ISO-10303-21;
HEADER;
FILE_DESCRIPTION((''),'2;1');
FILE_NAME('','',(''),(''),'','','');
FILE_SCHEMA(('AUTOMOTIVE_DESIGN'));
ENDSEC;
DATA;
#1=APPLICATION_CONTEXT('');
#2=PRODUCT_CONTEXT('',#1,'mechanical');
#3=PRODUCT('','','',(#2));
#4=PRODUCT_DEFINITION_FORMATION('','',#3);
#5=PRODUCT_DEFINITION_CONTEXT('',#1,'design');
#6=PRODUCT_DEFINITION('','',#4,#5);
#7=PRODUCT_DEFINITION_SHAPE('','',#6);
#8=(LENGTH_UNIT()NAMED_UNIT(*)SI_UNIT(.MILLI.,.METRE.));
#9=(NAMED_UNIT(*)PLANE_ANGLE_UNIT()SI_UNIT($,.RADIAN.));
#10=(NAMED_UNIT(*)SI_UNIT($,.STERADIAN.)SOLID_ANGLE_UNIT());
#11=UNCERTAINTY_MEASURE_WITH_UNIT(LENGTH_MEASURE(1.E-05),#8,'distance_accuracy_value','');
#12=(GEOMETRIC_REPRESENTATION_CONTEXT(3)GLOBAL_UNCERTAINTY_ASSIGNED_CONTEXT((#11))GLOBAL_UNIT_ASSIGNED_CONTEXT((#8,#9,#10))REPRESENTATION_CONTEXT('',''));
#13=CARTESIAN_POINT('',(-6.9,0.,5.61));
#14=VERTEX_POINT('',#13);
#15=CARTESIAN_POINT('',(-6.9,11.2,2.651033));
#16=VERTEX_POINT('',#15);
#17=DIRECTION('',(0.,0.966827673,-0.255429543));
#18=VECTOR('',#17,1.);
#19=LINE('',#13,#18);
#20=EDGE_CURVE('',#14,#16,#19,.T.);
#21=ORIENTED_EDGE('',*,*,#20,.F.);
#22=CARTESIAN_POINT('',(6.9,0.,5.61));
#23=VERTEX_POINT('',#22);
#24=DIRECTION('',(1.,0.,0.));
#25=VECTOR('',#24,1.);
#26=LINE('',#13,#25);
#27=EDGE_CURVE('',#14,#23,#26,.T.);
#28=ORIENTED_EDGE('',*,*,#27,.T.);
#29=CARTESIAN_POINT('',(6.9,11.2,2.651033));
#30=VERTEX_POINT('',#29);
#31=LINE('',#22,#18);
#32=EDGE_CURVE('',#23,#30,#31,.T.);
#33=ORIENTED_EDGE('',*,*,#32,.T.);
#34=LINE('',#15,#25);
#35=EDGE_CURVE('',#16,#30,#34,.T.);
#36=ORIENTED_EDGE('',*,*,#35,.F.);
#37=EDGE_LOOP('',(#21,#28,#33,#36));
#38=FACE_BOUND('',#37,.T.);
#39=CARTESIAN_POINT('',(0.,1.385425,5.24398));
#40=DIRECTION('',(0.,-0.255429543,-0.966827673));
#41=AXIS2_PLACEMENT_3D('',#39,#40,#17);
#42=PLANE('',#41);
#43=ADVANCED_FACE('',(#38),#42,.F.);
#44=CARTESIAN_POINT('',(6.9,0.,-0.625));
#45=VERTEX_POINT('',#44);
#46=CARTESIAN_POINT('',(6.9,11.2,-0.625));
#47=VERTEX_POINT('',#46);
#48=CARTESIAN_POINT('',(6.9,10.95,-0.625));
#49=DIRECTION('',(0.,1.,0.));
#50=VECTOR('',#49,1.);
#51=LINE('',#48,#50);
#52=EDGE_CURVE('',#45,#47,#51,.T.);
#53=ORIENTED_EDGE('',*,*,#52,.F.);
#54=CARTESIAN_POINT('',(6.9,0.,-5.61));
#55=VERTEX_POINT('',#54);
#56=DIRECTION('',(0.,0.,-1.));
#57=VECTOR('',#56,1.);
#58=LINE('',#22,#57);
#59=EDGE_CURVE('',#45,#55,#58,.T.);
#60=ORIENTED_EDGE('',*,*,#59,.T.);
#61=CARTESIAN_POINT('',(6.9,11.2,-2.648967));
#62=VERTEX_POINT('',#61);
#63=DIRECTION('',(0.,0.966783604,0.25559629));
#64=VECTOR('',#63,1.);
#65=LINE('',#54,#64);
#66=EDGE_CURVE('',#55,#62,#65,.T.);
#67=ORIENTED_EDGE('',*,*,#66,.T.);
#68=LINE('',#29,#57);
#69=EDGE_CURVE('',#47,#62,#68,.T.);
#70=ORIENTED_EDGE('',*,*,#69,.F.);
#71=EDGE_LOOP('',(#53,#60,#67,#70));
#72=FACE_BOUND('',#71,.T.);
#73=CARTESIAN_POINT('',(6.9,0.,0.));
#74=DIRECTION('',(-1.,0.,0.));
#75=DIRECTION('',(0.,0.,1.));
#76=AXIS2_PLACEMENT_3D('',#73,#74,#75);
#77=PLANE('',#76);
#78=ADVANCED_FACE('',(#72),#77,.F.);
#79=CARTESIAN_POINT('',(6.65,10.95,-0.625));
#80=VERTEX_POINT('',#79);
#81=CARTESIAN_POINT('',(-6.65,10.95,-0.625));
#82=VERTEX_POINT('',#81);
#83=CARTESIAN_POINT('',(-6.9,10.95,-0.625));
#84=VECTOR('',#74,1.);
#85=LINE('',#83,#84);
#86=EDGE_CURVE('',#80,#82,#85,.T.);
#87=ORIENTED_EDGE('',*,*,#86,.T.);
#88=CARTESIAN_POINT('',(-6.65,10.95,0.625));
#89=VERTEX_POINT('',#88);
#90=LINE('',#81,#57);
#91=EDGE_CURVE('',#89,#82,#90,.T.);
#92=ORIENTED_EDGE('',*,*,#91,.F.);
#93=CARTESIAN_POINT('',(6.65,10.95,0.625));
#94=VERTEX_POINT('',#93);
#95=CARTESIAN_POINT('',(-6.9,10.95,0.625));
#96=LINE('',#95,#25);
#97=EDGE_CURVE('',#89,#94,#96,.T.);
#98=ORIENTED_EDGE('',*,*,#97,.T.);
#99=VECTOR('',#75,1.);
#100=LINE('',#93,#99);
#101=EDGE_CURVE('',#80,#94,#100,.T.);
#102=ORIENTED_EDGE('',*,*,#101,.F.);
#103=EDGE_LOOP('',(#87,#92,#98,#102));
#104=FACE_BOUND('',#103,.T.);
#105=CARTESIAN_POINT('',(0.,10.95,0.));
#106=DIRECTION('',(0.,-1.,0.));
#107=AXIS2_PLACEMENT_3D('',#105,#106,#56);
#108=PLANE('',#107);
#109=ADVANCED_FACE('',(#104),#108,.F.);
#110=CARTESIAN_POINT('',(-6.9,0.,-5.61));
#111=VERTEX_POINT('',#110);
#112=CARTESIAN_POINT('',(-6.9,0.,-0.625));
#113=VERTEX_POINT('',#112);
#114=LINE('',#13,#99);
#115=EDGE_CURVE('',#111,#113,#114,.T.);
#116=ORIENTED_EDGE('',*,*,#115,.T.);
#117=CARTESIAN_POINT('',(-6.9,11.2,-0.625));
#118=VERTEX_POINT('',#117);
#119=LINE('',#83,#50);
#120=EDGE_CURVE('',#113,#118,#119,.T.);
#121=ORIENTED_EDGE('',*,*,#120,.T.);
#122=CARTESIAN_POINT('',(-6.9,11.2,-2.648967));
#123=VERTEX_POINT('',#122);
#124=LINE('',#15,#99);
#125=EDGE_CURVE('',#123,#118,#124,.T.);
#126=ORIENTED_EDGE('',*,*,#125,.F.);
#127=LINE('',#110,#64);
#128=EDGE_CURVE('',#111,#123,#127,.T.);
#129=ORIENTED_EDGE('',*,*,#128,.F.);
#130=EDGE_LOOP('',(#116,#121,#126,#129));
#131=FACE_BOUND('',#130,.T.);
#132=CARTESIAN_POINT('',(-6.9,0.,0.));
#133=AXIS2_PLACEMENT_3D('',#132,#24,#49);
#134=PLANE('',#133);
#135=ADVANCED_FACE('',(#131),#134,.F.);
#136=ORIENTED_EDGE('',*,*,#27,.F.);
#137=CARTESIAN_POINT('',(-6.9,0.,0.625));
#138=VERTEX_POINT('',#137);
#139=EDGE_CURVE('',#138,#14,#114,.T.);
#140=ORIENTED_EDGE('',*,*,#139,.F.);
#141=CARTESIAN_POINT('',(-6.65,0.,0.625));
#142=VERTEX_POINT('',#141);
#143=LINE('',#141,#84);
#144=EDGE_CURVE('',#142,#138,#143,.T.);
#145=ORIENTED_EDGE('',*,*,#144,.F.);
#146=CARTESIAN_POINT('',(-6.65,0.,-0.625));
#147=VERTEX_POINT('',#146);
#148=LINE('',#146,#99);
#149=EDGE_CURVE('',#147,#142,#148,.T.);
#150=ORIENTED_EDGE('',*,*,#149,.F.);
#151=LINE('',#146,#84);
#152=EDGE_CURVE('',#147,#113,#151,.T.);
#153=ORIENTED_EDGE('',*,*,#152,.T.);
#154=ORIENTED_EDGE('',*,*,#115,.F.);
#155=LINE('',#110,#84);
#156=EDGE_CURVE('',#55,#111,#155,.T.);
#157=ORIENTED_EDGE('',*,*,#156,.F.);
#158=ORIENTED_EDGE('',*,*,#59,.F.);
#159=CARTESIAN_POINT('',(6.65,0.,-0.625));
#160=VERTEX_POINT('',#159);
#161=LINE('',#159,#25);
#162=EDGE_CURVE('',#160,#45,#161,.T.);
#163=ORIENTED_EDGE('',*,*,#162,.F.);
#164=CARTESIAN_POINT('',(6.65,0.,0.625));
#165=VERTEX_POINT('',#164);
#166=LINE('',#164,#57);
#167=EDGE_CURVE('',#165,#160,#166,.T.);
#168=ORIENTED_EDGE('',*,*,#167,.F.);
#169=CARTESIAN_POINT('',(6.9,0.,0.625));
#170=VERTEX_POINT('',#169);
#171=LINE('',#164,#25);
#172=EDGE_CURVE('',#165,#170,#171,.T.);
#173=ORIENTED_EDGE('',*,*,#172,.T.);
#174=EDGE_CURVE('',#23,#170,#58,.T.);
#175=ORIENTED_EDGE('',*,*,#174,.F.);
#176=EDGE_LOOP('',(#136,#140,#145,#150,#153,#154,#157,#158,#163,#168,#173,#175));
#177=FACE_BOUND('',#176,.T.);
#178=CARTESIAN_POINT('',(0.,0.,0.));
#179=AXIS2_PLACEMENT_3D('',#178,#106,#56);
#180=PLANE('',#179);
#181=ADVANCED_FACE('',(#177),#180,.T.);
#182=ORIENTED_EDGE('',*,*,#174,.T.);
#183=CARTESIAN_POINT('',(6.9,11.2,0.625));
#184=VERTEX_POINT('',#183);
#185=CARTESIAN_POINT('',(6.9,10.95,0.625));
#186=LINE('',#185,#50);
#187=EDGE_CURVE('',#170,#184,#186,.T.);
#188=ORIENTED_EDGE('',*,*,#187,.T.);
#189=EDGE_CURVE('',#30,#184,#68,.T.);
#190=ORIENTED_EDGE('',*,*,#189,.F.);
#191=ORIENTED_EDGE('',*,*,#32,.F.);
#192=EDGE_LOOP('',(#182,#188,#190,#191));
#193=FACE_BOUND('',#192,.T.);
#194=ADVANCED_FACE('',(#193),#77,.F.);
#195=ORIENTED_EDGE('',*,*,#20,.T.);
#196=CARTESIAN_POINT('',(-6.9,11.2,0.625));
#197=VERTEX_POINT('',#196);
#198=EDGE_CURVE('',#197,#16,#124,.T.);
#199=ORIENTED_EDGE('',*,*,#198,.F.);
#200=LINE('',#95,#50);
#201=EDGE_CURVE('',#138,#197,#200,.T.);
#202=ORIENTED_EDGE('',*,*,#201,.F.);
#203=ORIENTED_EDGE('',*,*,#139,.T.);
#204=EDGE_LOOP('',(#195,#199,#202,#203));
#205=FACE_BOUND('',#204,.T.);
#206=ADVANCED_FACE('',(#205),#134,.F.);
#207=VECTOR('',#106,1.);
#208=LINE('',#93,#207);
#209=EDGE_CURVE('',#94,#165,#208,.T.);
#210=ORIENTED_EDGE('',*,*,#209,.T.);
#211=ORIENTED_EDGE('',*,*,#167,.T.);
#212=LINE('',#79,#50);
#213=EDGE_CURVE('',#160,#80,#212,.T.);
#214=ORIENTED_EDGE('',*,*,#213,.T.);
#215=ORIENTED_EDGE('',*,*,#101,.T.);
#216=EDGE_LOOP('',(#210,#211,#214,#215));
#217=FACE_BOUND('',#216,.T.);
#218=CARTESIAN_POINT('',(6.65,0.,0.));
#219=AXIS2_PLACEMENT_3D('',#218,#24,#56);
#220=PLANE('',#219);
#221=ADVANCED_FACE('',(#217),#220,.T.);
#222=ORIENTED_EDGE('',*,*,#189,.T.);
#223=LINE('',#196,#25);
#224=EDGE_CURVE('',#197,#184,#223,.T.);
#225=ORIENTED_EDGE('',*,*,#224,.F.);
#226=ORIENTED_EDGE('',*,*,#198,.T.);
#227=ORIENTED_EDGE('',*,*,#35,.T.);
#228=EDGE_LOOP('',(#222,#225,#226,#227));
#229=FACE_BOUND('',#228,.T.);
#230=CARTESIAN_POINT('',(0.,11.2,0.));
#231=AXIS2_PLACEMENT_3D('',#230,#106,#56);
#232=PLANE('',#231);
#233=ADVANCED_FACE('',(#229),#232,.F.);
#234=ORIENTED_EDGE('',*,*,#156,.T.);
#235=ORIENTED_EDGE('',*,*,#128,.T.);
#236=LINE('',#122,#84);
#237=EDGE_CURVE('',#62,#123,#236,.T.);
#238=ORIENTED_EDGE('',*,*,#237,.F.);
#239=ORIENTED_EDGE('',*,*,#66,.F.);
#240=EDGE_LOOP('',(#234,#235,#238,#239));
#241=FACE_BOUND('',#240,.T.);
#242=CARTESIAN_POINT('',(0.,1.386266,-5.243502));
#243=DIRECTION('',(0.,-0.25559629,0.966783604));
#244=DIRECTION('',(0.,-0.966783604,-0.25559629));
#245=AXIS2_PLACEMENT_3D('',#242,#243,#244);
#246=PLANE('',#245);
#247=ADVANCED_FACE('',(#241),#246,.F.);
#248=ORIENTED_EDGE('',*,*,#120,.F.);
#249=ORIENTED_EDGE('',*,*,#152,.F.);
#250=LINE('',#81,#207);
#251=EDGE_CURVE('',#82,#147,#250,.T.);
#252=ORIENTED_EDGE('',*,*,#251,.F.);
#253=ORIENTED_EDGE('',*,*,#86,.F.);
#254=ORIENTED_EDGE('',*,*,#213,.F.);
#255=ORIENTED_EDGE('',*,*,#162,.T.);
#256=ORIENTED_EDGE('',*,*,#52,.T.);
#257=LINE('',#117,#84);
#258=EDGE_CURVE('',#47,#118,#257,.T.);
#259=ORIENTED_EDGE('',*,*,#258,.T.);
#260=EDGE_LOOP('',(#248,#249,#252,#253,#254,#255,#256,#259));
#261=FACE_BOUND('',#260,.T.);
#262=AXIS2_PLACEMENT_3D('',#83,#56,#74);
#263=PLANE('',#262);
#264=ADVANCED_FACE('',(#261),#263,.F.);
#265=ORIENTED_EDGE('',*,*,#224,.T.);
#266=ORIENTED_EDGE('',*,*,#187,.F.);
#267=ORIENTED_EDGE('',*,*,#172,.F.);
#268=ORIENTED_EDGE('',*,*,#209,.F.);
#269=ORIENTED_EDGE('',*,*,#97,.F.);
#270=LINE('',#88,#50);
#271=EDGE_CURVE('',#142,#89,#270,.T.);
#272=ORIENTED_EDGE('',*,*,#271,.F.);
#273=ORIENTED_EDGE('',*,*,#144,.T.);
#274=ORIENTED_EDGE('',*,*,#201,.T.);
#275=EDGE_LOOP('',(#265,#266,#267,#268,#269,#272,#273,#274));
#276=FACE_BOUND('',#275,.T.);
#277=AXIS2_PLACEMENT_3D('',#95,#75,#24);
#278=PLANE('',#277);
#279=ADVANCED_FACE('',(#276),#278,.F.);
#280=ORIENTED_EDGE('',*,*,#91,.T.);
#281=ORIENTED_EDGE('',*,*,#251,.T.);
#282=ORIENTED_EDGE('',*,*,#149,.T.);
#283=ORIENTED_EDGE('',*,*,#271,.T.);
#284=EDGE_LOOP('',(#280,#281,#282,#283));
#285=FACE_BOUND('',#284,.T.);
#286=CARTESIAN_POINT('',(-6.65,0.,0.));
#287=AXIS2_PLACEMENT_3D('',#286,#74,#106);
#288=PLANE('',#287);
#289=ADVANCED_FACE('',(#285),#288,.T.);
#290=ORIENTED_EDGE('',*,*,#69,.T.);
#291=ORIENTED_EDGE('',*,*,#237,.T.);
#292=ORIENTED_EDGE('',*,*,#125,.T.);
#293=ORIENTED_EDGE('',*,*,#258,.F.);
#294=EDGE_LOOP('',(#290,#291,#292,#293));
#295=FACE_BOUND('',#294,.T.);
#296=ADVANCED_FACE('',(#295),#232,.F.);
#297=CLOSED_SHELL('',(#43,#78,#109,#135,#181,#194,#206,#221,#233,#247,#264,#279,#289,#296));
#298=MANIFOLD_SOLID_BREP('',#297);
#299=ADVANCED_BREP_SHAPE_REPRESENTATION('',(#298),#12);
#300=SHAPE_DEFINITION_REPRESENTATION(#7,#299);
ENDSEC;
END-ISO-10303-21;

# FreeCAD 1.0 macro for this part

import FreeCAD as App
import Part
import Sketcher
Q = App.Units.Quantity


def add_polygon(sketch, points):
    """Adds a closed chain of lines whose ends are joined by coincident constraints."""
    first, n = sketch.GeometryCount, len(points)
    for a, b in zip(points, points[1:] + points[:1]):
        sketch.addGeometry(Part.LineSegment(App.Vector(*a, 0), App.Vector(*b, 0)), False)
    for i in range(n):
        sketch.addConstraint(Sketcher.Constraint("Coincident", first + i, 2, first + (i + 1) % n, 1))

doc = App.newDocument("Part")
body = doc.addObject("PartDesign::Body", "Body")

sketch1 = doc.addObject("Sketcher::SketchObject", "Sketch")
body.addObject(sketch1)
sketch1.AttachmentSupport = (doc.XZ_Plane, [""])
sketch1.MapMode = "FlatFace"
add_polygon(sketch1, [(-7, 6), (7, 6), (7, -6), (-7, -6)])
sketch1.addConstraint([
    Sketcher.Constraint("Horizontal", 0),
    Sketcher.Constraint("Vertical", 1),
    Sketcher.Constraint("Horizontal", 2),
    Sketcher.Constraint("Vertical", 3),
    Sketcher.Constraint("Symmetric", 0, 2, 2, 2, -1, 1),
    Sketcher.Constraint("DistanceX", 0, 1, 0, 2, Q("13.8 mm")),
    Sketcher.Constraint("DistanceY", 1, 2, 1, 1, Q("11.22 mm")),
])

sketch2 = doc.addObject("Sketcher::SketchObject", "Sketch001")
body.addObject(sketch2)
sketch2.AttachmentSupport = (doc.XZ_Plane, [""])
sketch2.MapMode = "FlatFace"
sketch2.AttachmentOffset = App.Placement(App.Vector(0, 0, -11.2), App.Rotation())
add_polygon(sketch2, [(-7, 3), (7, 3), (7, -3), (-7, -3)])
sketch2.addConstraint([
    Sketcher.Constraint("Horizontal", 0),
    Sketcher.Constraint("Vertical", 1),
    Sketcher.Constraint("Horizontal", 2),
    Sketcher.Constraint("Vertical", 3),
    Sketcher.Constraint("DistanceX", 0, 1, 0, 2, Q("13.8 mm")),
    Sketcher.Constraint("DistanceY", 1, 2, 1, 1, Q("5.3 mm")),
    Sketcher.Constraint("DistanceX", -1, 1, 0, 2, Q("6.9 mm")),
    Sketcher.Constraint("DistanceY", -1, 1, 0, 2, Q("2.651033 mm")),
])

additiveloft = doc.addObject("PartDesign::AdditiveLoft", "AdditiveLoft")
body.addObject(additiveloft)
additiveloft.Profile = sketch1
additiveloft.Sections = [sketch2]

sketch3 = doc.addObject("Sketcher::SketchObject", "Sketch002")
body.addObject(sketch3)
sketch3.AttachmentSupport = (doc.XZ_Plane, [""])
sketch3.MapMode = "FlatFace"
sketch3.AttachmentOffset = App.Placement(App.Vector(0, 0, -11.2), App.Rotation())
add_polygon(sketch3, [(-6.9, -0.6), (-6.9, 0.6), (6.9, 0.6), (6.9, -0.6)])
sketch3.addConstraint([
    Sketcher.Constraint("Vertical", 0),
    Sketcher.Constraint("Horizontal", 1),
    Sketcher.Constraint("Vertical", 2),
    Sketcher.Constraint("Horizontal", 3),
    Sketcher.Constraint("Symmetric", 0, 2, 2, 2, -1, 1),
    Sketcher.Constraint("DistanceX", 1, 1, 1, 2, Q("13.8 mm")),
    Sketcher.Constraint("DistanceY", 0, 1, 0, 2, Q("1.25 mm")),
])
pocket1 = doc.addObject("PartDesign::Pocket", "Pocket")
body.addObject(pocket1)
pocket1.Profile = sketch3
pocket1.Length = 0.25
pocket1.Reversed = True

sketch4 = doc.addObject("Sketcher::SketchObject", "Sketch003")
body.addObject(sketch4)
sketch4.AttachmentSupport = (doc.YZ_Plane, [""])
sketch4.MapMode = "FlatFace"
sketch4.AttachmentOffset = App.Placement(App.Vector(0, 0, 6.9), App.Rotation())
add_polygon(sketch4, [(10.9, 0.6), (0, 0.6), (0, -0.6), (10.9, -0.6)])
sketch4.addConstraint([
    Sketcher.Constraint("Horizontal", 0),
    Sketcher.Constraint("Vertical", 1),
    Sketcher.Constraint("Horizontal", 2),
    Sketcher.Constraint("Vertical", 3),
    Sketcher.Constraint("Symmetric", 0, 2, 1, 2, -1, 1),
    Sketcher.Constraint("DistanceX", 0, 2, 0, 1, Q("10.95 mm")),
    Sketcher.Constraint("DistanceY", 1, 2, 1, 1, Q("1.25 mm")),
])
pocket2 = doc.addObject("PartDesign::Pocket", "Pocket001")
body.addObject(pocket2)
pocket2.Profile = sketch4
pocket2.Length = 0.25

sketch5 = doc.addObject("Sketcher::SketchObject", "Sketch004")
body.addObject(sketch5)
sketch5.AttachmentSupport = (doc.YZ_Plane, [""])
sketch5.MapMode = "FlatFace"
sketch5.AttachmentOffset = App.Placement(App.Vector(0, 0, -6.9), App.Rotation())
add_polygon(sketch5, [(10.9, -0.6), (0, -0.6), (0, 0.6), (10.9, 0.6)])
sketch5.addConstraint([
    Sketcher.Constraint("Horizontal", 0),
    Sketcher.Constraint("Vertical", 1),
    Sketcher.Constraint("Horizontal", 2),
    Sketcher.Constraint("Vertical", 3),
    Sketcher.Constraint("Symmetric", 0, 2, 1, 2, -1, 1),
    Sketcher.Constraint("DistanceX", 0, 2, 0, 1, Q("10.95 mm")),
    Sketcher.Constraint("DistanceY", 1, 1, 1, 2, Q("1.25 mm")),
])
pocket3 = doc.addObject("PartDesign::Pocket", "Pocket002")
body.addObject(pocket3)
pocket3.Profile = sketch5
pocket3.Length = 0.25
pocket3.Reversed = True

doc.recompute()
